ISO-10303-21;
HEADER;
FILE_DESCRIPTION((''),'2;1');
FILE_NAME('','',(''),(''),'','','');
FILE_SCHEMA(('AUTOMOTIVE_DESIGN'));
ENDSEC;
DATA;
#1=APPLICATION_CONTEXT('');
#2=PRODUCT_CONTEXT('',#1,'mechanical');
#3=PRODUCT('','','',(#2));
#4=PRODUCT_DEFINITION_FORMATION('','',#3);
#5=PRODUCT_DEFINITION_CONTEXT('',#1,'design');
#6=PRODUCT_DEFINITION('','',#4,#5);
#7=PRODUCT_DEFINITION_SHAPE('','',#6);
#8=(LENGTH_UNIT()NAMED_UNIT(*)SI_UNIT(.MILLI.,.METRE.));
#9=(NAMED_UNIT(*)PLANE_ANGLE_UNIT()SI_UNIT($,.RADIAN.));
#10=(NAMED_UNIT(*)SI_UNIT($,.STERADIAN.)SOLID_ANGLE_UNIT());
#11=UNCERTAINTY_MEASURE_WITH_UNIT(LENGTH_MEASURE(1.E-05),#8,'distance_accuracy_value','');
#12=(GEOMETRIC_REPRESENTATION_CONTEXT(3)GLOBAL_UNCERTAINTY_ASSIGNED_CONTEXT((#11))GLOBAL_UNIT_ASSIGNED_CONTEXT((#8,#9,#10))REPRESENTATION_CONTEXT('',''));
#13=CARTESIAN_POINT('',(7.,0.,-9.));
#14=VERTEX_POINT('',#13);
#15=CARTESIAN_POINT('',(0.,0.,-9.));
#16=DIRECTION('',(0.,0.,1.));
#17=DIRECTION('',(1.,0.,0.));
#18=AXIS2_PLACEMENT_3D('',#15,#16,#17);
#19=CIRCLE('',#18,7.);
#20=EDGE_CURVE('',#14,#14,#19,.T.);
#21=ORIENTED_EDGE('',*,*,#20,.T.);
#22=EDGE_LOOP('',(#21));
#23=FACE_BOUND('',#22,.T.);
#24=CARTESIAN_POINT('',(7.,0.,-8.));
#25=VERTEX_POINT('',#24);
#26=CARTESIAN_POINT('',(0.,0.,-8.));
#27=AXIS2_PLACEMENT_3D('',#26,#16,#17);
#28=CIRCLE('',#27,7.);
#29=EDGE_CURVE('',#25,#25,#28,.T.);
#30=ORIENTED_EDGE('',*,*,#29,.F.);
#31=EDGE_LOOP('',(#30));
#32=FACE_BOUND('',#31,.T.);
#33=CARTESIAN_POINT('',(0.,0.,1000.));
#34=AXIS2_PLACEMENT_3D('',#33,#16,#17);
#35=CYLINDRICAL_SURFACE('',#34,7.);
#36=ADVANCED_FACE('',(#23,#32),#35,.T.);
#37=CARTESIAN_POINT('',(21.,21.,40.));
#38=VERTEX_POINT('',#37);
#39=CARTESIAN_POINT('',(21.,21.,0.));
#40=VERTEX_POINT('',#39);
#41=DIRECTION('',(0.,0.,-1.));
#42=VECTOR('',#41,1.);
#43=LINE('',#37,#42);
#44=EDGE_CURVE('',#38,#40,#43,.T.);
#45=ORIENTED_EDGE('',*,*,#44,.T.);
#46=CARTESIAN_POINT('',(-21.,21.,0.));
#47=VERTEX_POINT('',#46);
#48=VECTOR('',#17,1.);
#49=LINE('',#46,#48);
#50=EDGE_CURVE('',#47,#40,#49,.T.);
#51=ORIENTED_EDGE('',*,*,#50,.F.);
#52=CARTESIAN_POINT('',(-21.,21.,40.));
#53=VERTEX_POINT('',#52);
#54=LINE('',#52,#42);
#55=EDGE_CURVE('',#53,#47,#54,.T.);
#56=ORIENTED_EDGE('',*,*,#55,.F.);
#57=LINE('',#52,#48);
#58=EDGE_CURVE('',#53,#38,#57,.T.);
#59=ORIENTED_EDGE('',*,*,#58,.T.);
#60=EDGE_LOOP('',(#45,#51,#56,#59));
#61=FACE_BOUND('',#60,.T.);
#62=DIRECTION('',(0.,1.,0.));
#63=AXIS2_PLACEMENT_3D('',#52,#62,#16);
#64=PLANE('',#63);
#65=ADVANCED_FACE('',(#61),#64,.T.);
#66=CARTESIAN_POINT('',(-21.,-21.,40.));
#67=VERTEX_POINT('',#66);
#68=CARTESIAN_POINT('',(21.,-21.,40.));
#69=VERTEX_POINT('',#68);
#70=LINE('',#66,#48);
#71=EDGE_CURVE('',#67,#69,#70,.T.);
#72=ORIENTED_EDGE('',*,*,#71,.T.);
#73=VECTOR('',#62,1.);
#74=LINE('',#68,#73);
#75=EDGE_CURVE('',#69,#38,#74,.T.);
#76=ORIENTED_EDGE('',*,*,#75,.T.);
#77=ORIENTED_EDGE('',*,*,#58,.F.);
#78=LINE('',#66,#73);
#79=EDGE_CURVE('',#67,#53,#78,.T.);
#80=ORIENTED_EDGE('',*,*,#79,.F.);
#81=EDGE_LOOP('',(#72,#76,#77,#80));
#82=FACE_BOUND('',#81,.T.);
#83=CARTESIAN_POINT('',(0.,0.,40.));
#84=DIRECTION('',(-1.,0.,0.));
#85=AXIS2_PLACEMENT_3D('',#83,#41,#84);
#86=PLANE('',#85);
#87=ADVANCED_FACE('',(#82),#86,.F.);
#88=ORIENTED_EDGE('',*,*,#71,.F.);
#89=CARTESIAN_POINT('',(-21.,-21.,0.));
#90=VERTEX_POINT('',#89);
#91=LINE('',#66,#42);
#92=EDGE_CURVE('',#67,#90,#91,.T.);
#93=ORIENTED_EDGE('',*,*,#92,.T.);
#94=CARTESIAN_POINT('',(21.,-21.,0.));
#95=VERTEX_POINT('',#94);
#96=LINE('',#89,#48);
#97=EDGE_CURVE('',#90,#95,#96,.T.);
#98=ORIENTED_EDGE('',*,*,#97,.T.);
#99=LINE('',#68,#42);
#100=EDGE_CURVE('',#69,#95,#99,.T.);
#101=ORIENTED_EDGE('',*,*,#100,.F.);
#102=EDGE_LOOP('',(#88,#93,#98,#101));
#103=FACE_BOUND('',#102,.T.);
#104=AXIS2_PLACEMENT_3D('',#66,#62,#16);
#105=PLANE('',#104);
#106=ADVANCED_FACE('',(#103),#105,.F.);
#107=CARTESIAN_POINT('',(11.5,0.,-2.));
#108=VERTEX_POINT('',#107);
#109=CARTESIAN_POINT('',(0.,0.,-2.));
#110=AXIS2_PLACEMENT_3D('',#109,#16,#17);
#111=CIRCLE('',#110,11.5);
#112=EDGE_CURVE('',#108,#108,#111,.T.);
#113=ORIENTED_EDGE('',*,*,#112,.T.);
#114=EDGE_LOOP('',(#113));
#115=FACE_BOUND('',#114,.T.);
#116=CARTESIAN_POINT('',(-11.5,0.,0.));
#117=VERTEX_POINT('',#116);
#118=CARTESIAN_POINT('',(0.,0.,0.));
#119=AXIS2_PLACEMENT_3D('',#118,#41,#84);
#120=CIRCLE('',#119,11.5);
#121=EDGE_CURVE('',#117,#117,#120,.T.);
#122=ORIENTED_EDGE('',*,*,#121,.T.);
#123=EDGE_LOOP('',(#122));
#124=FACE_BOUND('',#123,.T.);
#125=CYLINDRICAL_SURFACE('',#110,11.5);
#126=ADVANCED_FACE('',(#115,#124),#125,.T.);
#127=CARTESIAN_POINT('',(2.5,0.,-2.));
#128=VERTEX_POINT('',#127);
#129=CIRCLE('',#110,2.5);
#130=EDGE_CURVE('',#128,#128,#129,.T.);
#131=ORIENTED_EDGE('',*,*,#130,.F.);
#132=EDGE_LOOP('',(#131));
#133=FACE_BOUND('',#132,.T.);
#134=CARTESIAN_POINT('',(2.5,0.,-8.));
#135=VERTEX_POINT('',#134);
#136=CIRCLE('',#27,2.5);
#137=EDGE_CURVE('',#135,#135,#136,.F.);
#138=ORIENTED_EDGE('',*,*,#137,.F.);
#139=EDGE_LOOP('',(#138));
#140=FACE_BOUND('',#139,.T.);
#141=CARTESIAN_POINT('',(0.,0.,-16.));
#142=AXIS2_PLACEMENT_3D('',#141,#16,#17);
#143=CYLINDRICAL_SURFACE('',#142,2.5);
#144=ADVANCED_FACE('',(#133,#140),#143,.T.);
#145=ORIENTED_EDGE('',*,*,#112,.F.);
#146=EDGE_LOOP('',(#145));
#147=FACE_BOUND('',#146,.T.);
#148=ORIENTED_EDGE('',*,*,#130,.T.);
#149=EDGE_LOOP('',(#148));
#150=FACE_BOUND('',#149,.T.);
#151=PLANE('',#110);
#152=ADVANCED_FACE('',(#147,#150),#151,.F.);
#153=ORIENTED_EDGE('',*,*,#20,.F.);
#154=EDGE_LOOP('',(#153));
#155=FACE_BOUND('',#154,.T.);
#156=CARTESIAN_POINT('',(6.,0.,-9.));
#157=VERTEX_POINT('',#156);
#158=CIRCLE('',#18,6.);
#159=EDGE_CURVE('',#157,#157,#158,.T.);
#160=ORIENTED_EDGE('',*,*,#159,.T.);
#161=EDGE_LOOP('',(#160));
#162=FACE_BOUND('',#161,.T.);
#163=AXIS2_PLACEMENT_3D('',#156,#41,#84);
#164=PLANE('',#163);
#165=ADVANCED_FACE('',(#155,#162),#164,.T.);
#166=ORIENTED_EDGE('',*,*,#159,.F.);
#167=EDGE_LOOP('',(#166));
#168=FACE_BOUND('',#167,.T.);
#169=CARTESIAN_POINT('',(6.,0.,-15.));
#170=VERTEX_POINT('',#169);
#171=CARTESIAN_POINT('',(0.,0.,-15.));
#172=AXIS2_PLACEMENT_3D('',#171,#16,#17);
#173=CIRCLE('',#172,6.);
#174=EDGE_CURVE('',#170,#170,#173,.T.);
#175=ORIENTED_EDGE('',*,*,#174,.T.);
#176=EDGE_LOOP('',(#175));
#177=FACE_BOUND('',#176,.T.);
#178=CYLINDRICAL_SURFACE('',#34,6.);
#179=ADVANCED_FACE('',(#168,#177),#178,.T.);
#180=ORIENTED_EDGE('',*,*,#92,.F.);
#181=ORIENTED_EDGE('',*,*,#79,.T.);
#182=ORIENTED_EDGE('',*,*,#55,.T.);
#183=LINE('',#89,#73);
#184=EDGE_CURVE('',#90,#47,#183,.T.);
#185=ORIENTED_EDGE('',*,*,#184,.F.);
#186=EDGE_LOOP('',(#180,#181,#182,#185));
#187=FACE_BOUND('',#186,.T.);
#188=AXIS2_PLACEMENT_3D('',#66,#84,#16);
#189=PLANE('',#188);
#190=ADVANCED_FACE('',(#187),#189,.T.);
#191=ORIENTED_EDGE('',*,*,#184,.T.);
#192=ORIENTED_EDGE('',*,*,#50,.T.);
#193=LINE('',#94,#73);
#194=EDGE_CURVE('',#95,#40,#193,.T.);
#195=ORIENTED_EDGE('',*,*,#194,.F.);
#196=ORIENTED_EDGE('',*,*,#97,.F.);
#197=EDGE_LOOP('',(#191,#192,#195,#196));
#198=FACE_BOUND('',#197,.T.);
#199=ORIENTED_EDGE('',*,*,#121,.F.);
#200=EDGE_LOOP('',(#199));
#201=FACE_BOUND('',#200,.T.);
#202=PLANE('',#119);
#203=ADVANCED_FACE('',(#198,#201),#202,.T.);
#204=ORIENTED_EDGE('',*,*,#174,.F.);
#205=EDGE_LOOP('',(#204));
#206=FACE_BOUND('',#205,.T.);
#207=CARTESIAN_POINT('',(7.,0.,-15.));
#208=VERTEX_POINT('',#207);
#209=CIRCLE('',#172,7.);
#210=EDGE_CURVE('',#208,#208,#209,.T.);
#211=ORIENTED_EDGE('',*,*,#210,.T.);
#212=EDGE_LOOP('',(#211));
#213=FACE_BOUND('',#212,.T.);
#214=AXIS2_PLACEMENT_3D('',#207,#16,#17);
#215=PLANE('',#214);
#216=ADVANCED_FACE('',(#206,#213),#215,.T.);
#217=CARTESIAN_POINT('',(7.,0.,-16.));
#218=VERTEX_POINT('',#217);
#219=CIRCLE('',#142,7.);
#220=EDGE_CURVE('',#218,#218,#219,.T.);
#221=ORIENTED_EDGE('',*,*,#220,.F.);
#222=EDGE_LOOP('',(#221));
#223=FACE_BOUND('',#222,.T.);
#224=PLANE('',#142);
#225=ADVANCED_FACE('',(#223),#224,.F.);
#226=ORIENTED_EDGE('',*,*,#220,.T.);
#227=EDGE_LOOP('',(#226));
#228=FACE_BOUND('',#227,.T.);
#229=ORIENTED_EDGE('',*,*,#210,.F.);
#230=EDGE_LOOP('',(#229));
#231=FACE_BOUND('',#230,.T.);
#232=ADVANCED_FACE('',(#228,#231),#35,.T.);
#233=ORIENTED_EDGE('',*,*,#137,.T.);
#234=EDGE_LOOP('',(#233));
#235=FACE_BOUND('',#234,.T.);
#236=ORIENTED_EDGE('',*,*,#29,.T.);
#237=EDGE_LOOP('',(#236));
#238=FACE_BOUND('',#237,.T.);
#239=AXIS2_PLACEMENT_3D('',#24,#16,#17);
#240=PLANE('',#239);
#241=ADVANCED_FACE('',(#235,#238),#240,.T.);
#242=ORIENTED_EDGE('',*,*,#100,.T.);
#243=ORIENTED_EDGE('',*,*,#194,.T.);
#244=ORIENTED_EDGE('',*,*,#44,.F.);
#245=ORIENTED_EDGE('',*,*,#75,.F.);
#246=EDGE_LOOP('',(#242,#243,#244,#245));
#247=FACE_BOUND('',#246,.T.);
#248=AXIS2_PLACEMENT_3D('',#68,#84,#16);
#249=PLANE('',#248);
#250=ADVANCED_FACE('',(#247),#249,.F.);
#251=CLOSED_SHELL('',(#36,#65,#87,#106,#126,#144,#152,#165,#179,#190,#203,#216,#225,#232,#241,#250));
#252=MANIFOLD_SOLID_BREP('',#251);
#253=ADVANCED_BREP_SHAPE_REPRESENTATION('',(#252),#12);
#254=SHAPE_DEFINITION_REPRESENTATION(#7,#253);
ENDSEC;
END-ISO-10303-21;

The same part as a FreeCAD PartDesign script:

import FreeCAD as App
import Part
import Sketcher

doc = App.newDocument("Part")
params = doc.addObject("Spreadsheet::Sheet", "Params")
for row, (alias, value) in enumerate([
    ("sketch1_width", "42 mm"),
    ("pad1_length", "40 mm"),
    ("sketch2_diameter", "23 mm"),
    ("pad2_length", "2 mm"),
    ("sketch3_diameter", "5 mm"),
    ("pad3_length", "16 mm"),
    ("sketch4_width", "1 mm"),
    ("sketch4_height", "8 mm"),
    ("sketch4_width2", "4.5 mm"),
    ("revolution_angle", "360 deg"),
], start=1):
    params.set(f"A{row}", alias)
    params.set(f"B{row}", "=" + value)
    params.setAlias(f"B{row}", alias)

body = doc.addObject("PartDesign::Body", "Body")

sketch1 = body.newObject("Sketcher::SketchObject", "Sketch")
sketch1.AttachmentSupport = (doc.getObject("XY_Plane"), [""])
sketch1.MapMode = "FlatFace"
sketch1.addGeometry(Part.LineSegment(App.Vector(-21, 21, 0), App.Vector(-21, -21, 0)), False)
sketch1.addGeometry(Part.LineSegment(App.Vector(-21, -21, 0), App.Vector(21, -21, 0)), False)
sketch1.addGeometry(Part.LineSegment(App.Vector(21, -21, 0), App.Vector(21, 21, 0)), False)
sketch1.addGeometry(Part.LineSegment(App.Vector(21, 21, 0), App.Vector(-21, 21, 0)), False)
sketch1.addConstraint(Sketcher.Constraint("Coincident", 0, 2, 1, 1))
sketch1.addConstraint(Sketcher.Constraint("Coincident", 1, 2, 2, 1))
sketch1.addConstraint(Sketcher.Constraint("Coincident", 2, 2, 3, 1))
sketch1.addConstraint(Sketcher.Constraint("Coincident", 3, 2, 0, 1))
sketch1.addConstraint(Sketcher.Constraint("Vertical", 0))
sketch1.addConstraint(Sketcher.Constraint("Horizontal", 1))
sketch1.addConstraint(Sketcher.Constraint("Vertical", 2))
sketch1.addConstraint(Sketcher.Constraint("Horizontal", 3))
sketch1.addConstraint(Sketcher.Constraint("Symmetric", 0, 2, 2, 2, -1, 1))
sketch1.addConstraint(Sketcher.Constraint("Equal", 3, 0))
sketch1.addConstraint(Sketcher.Constraint("DistanceX", 1, 1, 1, 2, 42.0))
sketch1.setExpression("Constraints[10]", "Params.sketch1_width")
pad1 = body.newObject("PartDesign::Pad", "Pad")
pad1.Profile = sketch1
pad1.setExpression("Length", "Params.pad1_length")

sketch2 = body.newObject("Sketcher::SketchObject", "Sketch001")
sketch2.AttachmentSupport = (doc.getObject("XY_Plane"), [""])
sketch2.MapMode = "FlatFace"
sketch2.addGeometry(Part.Circle(App.Vector(0, 0, 0), App.Vector(0, 0, 1), 12), False)
sketch2.addConstraint(Sketcher.Constraint("Coincident", 0, 3, -1, 1))
sketch2.addConstraint(Sketcher.Constraint("Diameter", 0, 23.0))
sketch2.setExpression("Constraints[1]", "Params.sketch2_diameter")
pad2 = body.newObject("PartDesign::Pad", "Pad001")
pad2.Profile = sketch2
pad2.setExpression("Length", "Params.pad2_length")
pad2.Reversed = True

sketch3 = body.newObject("Sketcher::SketchObject", "Sketch002")
sketch3.AttachmentSupport = (doc.getObject("XY_Plane"), [""])
sketch3.MapMode = "FlatFace"
sketch3.addGeometry(Part.Circle(App.Vector(0, 0, 0), App.Vector(0, 0, 1), 2.5), False)
sketch3.addConstraint(Sketcher.Constraint("Coincident", 0, 3, -1, 1))
sketch3.addConstraint(Sketcher.Constraint("Diameter", 0, 5.0))
sketch3.setExpression("Constraints[1]", "Params.sketch3_diameter")
pad3 = body.newObject("PartDesign::Pad", "Pad002")
pad3.Profile = sketch3
pad3.setExpression("Length", "Params.pad3_length")
pad3.Reversed = True

sketch4 = body.newObject("Sketcher::SketchObject", "Sketch003")
sketch4.AttachmentSupport = (doc.getObject("XZ_Plane"), [""])
sketch4.MapMode = "FlatFace"
sketch4.addGeometry(Part.LineSegment(App.Vector(7, -16, 0), App.Vector(2.5, -16, 0)), False)
sketch4.addGeometry(Part.LineSegment(App.Vector(2.5, -16, 0), App.Vector(2.5, -8, 0)), False)
sketch4.addGeometry(Part.LineSegment(App.Vector(2.5, -8, 0), App.Vector(7, -8, 0)), False)
sketch4.addGeometry(Part.LineSegment(App.Vector(7, -8, 0), App.Vector(7, -9, 0)), False)
sketch4.addGeometry(Part.LineSegment(App.Vector(7, -9, 0), App.Vector(6, -9, 0)), False)
sketch4.addGeometry(Part.LineSegment(App.Vector(6, -9, 0), App.Vector(6, -15, 0)), False)
sketch4.addGeometry(Part.LineSegment(App.Vector(6, -15, 0), App.Vector(7, -15, 0)), False)
sketch4.addGeometry(Part.LineSegment(App.Vector(7, -15, 0), App.Vector(7, -16, 0)), False)
sketch4.addConstraint(Sketcher.Constraint("Coincident", 0, 2, 1, 1))
sketch4.addConstraint(Sketcher.Constraint("Coincident", 1, 2, 2, 1))
sketch4.addConstraint(Sketcher.Constraint("Coincident", 2, 2, 3, 1))
sketch4.addConstraint(Sketcher.Constraint("Coincident", 3, 2, 4, 1))
sketch4.addConstraint(Sketcher.Constraint("Coincident", 4, 2, 5, 1))
sketch4.addConstraint(Sketcher.Constraint("Coincident", 5, 2, 6, 1))
sketch4.addConstraint(Sketcher.Constraint("Coincident", 6, 2, 7, 1))
sketch4.addConstraint(Sketcher.Constraint("Coincident", 7, 2, 0, 1))
sketch4.addConstraint(Sketcher.Constraint("Horizontal", 0))
sketch4.addConstraint(Sketcher.Constraint("Vertical", 1))
sketch4.addConstraint(Sketcher.Constraint("Horizontal", 2))
sketch4.addConstraint(Sketcher.Constraint("Vertical", 3))
sketch4.addConstraint(Sketcher.Constraint("Horizontal", 4))
sketch4.addConstraint(Sketcher.Constraint("Vertical", 5))
sketch4.addConstraint(Sketcher.Constraint("Horizontal", 6))
sketch4.addConstraint(Sketcher.Constraint("Vertical", 7))
sketch4.addConstraint(Sketcher.Constraint("Vertical", 3, 2, 6, 2))
sketch4.addConstraint(Sketcher.Constraint("Equal", 6, 3))
sketch4.addConstraint(Sketcher.Constraint("Equal", 3, 7))
sketch4.addConstraint(Sketcher.Constraint("DistanceX", 4, 2, 4, 1, 1.0))
sketch4.addConstraint(Sketcher.Constraint("DistanceY", 1, 1, 1, 2, 8.0))
sketch4.addConstraint(Sketcher.Constraint("DistanceX", 0, 2, 0, 1, 4.5))
sketch4.addConstraint(Sketcher.Constraint("DistanceY", 0, 2, -1, 1, 16.0))
sketch4.addConstraint(Sketcher.Constraint("DistanceX", -1, 1, 2, 2, 7.0))
sketch4.setExpression("Constraints[19]", "Params.sketch4_width")
sketch4.setExpression("Constraints[20]", "Params.sketch4_height")
sketch4.setExpression("Constraints[21]", "Params.sketch4_width2")
revolution = body.newObject("PartDesign::Revolution", "Revolution")
revolution.Profile = sketch4
revolution.ReferenceAxis = (sketch4, ["V_Axis"])
revolution.setExpression("Angle", "Params.revolution_angle")

doc.recompute()
